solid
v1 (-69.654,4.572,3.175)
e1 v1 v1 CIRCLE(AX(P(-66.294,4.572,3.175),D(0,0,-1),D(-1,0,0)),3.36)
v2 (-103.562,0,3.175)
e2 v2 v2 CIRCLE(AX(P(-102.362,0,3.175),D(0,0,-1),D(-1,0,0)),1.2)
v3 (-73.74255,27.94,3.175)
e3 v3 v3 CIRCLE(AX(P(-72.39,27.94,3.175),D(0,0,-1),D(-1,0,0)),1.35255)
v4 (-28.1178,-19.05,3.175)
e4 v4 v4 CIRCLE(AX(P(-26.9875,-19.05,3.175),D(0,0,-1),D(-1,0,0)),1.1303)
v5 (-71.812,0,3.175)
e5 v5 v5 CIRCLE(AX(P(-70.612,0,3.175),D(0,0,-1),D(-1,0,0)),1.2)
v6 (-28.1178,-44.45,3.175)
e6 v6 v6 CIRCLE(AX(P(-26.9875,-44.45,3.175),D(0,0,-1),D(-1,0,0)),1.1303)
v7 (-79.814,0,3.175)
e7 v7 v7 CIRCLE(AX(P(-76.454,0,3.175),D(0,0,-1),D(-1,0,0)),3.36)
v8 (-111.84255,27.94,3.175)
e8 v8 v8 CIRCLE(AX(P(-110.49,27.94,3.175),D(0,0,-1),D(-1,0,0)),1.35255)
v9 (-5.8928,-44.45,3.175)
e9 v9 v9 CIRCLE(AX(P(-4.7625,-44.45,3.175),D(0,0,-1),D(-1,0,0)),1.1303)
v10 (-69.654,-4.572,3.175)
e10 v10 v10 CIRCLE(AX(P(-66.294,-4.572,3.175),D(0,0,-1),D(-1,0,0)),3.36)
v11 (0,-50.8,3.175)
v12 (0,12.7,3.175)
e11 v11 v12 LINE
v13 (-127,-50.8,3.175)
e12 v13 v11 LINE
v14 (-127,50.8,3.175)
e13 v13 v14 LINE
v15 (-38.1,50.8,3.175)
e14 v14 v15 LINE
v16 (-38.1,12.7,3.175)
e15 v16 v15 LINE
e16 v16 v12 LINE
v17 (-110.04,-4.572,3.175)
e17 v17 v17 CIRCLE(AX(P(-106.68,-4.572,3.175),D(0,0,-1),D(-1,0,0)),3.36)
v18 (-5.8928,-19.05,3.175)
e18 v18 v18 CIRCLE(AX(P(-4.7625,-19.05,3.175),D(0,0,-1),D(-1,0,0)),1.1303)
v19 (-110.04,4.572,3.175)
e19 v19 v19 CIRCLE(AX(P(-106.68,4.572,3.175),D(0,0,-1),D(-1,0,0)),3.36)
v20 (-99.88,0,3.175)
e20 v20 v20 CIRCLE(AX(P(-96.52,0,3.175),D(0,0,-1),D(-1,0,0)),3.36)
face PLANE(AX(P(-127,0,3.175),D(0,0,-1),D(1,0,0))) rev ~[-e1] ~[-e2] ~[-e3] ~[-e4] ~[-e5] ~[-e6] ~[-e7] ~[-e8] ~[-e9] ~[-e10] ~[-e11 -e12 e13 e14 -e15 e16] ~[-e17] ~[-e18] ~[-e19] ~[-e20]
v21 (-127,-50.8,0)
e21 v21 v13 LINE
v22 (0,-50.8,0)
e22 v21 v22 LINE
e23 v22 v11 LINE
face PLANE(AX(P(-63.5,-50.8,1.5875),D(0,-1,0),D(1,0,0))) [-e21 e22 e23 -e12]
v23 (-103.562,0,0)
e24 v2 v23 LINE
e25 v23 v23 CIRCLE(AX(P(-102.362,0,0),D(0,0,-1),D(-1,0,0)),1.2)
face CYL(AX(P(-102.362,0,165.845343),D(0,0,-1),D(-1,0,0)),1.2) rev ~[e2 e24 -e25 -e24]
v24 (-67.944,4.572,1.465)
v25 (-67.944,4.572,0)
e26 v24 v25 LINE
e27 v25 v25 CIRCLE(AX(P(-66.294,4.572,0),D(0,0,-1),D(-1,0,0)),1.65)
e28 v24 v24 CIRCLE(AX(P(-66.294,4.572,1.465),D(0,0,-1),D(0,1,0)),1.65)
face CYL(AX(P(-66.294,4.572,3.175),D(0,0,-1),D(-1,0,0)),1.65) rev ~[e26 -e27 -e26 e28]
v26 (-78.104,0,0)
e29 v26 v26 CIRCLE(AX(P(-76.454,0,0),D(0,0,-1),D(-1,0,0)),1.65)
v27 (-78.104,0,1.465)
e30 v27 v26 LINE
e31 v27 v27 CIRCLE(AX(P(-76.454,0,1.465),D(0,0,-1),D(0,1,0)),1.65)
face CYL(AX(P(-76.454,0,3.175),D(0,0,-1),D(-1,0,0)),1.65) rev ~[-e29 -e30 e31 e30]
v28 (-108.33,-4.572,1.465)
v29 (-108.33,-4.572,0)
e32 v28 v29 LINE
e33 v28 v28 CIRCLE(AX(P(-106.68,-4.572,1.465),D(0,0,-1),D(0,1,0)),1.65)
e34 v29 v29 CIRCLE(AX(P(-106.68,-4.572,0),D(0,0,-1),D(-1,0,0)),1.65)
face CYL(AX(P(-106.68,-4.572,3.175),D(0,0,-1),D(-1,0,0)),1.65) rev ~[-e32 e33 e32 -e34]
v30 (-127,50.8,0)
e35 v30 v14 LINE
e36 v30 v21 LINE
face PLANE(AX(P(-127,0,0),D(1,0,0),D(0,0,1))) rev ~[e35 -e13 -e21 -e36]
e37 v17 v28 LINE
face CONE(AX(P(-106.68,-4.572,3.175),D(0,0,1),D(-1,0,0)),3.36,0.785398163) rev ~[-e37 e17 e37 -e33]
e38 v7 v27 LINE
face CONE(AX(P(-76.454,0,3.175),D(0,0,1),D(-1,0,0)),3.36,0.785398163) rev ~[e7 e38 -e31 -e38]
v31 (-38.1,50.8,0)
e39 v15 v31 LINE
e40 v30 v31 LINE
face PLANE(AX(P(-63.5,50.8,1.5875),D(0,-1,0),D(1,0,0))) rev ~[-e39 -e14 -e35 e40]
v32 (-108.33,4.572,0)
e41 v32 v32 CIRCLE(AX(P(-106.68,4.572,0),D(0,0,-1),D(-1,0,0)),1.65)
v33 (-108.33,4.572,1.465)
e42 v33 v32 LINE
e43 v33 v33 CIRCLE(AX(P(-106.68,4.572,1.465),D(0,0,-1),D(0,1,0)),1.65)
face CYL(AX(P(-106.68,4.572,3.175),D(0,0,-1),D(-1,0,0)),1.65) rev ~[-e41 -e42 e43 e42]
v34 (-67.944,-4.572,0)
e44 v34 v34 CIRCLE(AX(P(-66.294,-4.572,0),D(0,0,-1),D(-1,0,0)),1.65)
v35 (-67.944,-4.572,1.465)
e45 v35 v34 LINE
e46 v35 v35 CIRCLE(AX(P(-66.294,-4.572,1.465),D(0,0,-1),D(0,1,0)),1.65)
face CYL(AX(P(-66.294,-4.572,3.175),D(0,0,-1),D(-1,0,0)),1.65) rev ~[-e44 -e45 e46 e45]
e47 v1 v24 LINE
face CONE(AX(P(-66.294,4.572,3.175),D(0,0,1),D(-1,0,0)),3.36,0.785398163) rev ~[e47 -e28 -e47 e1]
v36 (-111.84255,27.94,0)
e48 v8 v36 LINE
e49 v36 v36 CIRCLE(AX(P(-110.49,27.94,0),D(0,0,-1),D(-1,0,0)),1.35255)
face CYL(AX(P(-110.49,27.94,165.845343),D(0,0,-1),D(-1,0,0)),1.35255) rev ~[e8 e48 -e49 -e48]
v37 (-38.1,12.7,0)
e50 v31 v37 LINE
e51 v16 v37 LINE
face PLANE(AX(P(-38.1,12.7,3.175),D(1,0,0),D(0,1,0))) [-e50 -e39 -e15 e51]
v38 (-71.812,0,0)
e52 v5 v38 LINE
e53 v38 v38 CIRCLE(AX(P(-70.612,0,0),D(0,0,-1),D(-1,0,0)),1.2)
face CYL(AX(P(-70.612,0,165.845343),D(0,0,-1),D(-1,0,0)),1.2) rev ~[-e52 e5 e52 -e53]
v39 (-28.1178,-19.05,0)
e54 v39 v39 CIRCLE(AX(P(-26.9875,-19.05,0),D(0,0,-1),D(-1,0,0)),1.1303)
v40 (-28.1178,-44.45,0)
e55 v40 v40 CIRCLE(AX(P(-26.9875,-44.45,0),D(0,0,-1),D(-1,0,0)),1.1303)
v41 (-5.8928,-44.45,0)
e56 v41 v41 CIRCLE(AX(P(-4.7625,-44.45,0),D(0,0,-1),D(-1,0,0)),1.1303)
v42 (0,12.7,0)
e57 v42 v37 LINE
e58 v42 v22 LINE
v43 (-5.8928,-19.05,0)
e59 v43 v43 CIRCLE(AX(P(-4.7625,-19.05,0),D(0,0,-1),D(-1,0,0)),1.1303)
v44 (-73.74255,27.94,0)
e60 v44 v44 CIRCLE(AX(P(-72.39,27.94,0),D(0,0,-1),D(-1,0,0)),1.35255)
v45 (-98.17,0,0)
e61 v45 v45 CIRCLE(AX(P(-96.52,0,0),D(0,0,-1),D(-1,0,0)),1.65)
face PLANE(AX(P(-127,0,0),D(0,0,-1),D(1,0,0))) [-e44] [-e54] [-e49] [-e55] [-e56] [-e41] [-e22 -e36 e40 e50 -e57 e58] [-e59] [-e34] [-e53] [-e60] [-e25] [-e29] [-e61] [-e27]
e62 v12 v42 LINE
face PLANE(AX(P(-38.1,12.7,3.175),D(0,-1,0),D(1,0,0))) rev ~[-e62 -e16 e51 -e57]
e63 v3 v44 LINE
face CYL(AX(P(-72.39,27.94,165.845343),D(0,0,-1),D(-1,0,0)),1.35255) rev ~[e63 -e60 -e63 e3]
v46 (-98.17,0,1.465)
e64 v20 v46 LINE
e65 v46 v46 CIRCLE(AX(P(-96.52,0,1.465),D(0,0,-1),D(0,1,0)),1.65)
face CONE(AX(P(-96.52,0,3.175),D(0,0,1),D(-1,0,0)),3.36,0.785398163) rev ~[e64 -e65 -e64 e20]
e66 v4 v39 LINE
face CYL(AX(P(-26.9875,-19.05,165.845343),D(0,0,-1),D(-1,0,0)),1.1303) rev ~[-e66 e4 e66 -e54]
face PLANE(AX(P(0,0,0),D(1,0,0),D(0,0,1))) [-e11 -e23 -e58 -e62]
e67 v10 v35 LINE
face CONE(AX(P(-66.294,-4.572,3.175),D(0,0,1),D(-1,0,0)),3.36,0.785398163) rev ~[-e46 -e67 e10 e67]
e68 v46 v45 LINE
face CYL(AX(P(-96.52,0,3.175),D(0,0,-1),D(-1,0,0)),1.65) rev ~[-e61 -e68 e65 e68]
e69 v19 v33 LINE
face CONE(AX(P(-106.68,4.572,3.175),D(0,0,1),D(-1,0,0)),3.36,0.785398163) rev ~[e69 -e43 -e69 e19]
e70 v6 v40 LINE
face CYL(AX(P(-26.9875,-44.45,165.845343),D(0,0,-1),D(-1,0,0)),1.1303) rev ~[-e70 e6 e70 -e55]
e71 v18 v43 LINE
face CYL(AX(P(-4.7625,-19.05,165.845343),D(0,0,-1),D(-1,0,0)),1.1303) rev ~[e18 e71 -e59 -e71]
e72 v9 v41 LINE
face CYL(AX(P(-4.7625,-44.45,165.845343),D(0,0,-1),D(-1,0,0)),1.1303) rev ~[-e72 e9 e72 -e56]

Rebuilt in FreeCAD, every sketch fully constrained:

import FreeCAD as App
import Part
import Sketcher
from FreeCAD import Vector
Q = App.Units.Quantity

doc = App.newDocument("Part")
body = doc.addObject("PartDesign::Body", "Body")

# Sketch on XZ plane
sketch1 = body.newObject("Sketcher::SketchObject", "Sketch")
sketch1.AttachmentSupport = (doc.getObject("XZ_Plane"), [""])
sketch1.MapMode = "FlatFace"
sketch1.addGeometry(Part.LineSegment(Vector(-127, 3.175, 0), Vector(-127, 0, 0)), False)
sketch1.addGeometry(Part.LineSegment(Vector(-127, 0, 0), Vector(0, 0, 0)), False)
sketch1.addGeometry(Part.LineSegment(Vector(0, 0, 0), Vector(0, 3.175, 0)), False)
sketch1.addGeometry(Part.LineSegment(Vector(0, 3.175, 0), Vector(-127, 3.175, 0)), False)
sketch1.addConstraint(Sketcher.Constraint("Coincident", 0, 2, 1, 1))
sketch1.addConstraint(Sketcher.Constraint("Coincident", 1, 2, 2, 1))
sketch1.addConstraint(Sketcher.Constraint("Coincident", 2, 2, 3, 1))
sketch1.addConstraint(Sketcher.Constraint("Coincident", 3, 2, 0, 1))
sketch1.addConstraint(Sketcher.Constraint("Vertical", 0))
sketch1.addConstraint(Sketcher.Constraint("Horizontal", 1))
sketch1.addConstraint(Sketcher.Constraint("Vertical", 2))
sketch1.addConstraint(Sketcher.Constraint("Horizontal", 3))
sketch1.addConstraint(Sketcher.Constraint("Coincident", 1, 2, -1, 1))
sketch1.addConstraint(Sketcher.Constraint("DistanceX", 1, 1, 1, 2, Q("5 in")))
sketch1.addConstraint(Sketcher.Constraint("DistanceY", 0, 2, 0, 1, Q("0.125 in")))
pad1 = body.newObject("PartDesign::Pad", "Pad")
pad1.Profile = sketch1
pad1.Length = Q("4 in")
pad1.Midplane = True

# Sketch on XY plane
sketch2 = body.newObject("Sketcher::SketchObject", "Sketch001")
sketch2.AttachmentSupport = (doc.getObject("XY_Plane"), [""])
sketch2.MapMode = "FlatFace"
sketch2.AttachmentOffset = App.Placement(Vector(0, 0, 0.125 * 25.4), App.Rotation())
sketch2.addGeometry(Part.Circle(Vector(-66.294, 4.572, 0), Vector(0, 0, 1), 1.65), False)
sketch2.addGeometry(Part.Circle(Vector(-66.294, -4.572, 0), Vector(0, 0, 1), 1.65), False)
sketch2.addGeometry(Part.Circle(Vector(-76.454, 0, 0), Vector(0, 0, 1), 1.65), False)
sketch2.addGeometry(Part.Circle(Vector(-96.52, 0, 0), Vector(0, 0, 1), 1.65), False)
sketch2.addGeometry(Part.Circle(Vector(-106.68, 4.572, 0), Vector(0, 0, 1), 1.65), False)
sketch2.addGeometry(Part.Circle(Vector(-106.68, -4.572, 0), Vector(0, 0, 1), 1.65), False)
sketch2.addConstraint(Sketcher.Constraint("Equal", 0, 1))
sketch2.addConstraint(Sketcher.Constraint("Equal", 1, 2))
sketch2.addConstraint(Sketcher.Constraint("Equal", 2, 3))
sketch2.addConstraint(Sketcher.Constraint("Equal", 3, 4))
sketch2.addConstraint(Sketcher.Constraint("Equal", 4, 5))
sketch2.addConstraint(Sketcher.Constraint("Symmetric", 0, 3, 1, 3, -1))
sketch2.addConstraint(Sketcher.Constraint("Symmetric", 4, 3, 5, 3, -1))
sketch2.addConstraint(Sketcher.Constraint("PointOnObject", 2, 3, -1))
sketch2.addConstraint(Sketcher.Constraint("PointOnObject", 3, 3, -1))
sketch2.addConstraint(Sketcher.Constraint("Horizontal", 0, 3, 4, 3))
sketch2.addConstraint(Sketcher.Constraint("DistanceX", 3, 3, -1, 1, Q("3.8 in")))
sketch2.addConstraint(Sketcher.Constraint("DistanceX", 4, 3, -1, 1, Q("4.2 in")))
sketch2.addConstraint(Sketcher.Constraint("DistanceX", 2, 3, 0, 3, Q("0.4 in")))
sketch2.addConstraint(Sketcher.Constraint("Diameter", 0, Q("3.3 mm")))
sketch2.addConstraint(Sketcher.Constraint("DistanceX", 0, 3, -1, 1, Q("2.61 in")))
sketch2.addConstraint(Sketcher.Constraint("DistanceY", -1, 1, 0, 3, Q("0.18 in")))
doc.recompute()
hole = body.newObject("PartDesign::Hole", "Hole")
hole.Profile = sketch2
hole.ThreadType = "None"
hole.Diameter = 3.3
hole.DepthType = "ThroughAll"
hole.HoleCutType = "Countersink"
hole.HoleCutDiameter = 6.72
hole.HoleCutCountersinkAngle = 90

# Sketch on XY plane
sketch3 = body.newObject("Sketcher::SketchObject", "Sketch002")
sketch3.AttachmentSupport = (doc.getObject("XY_Plane"), [""])
sketch3.MapMode = "FlatFace"
sketch3.AttachmentOffset = App.Placement(Vector(0, 0, 0.125 * 25.4), App.Rotation())
sketch3.addGeometry(Part.Circle(Vector(-102.362, 0, 0), Vector(0, 0, 1), 1.2), False)
sketch3.addGeometry(Part.Circle(Vector(-70.612, 0, 0), Vector(0, 0, 1), 1.2), False)
sketch3.addConstraint(Sketcher.Constraint("Equal", 0, 1))
sketch3.addConstraint(Sketcher.Constraint("PointOnObject", 0, 3, -1))
sketch3.addConstraint(Sketcher.Constraint("PointOnObject", 1, 3, -1))
sketch3.addConstraint(Sketcher.Constraint("Diameter", 0, Q("2.4 mm")))
sketch3.addConstraint(Sketcher.Constraint("DistanceX", 0, 3, -1, 1, Q("4.03 in")))
sketch3.addConstraint(Sketcher.Constraint("DistanceX", 1, 3, -1, 1, Q("2.78 in")))
doc.recompute()
hole2 = body.newObject("PartDesign::Hole", "Hole001")
hole2.Profile = sketch3
hole2.ThreadType = "None"
hole2.Diameter = 2.4
hole2.DepthType = "ThroughAll"

# Sketch on XY plane
sketch4 = body.newObject("Sketcher::SketchObject", "Sketch003")
sketch4.AttachmentSupport = (doc.getObject("XY_Plane"), [""])
sketch4.MapMode = "FlatFace"
sketch4.AttachmentOffset = App.Placement(Vector(0, 0, 0.125 * 25.4), App.Rotation())
sketch4.addGeometry(Part.LineSegment(Vector(-38.1, 50.8, 0), Vector(-38.1, 12.7, 0)), False)
sketch4.addGeometry(Part.LineSegment(Vector(-38.1, 12.7, 0), Vector(0, 12.7, 0)), False)
sketch4.addGeometry(Part.LineSegment(Vector(0, 12.7, 0), Vector(0, 50.8, 0)), False)
sketch4.addGeometry(Part.LineSegment(Vector(0, 50.8, 0), Vector(-38.1, 50.8, 0)), False)
sketch4.addConstraint(Sketcher.Constraint("Coincident", 0, 2, 1, 1))
sketch4.addConstraint(Sketcher.Constraint("Coincident", 1, 2, 2, 1))
sketch4.addConstraint(Sketcher.Constraint("Coincident", 2, 2, 3, 1))
sketch4.addConstraint(Sketcher.Constraint("Coincident", 3, 2, 0, 1))
sketch4.addConstraint(Sketcher.Constraint("Vertical", 0))
sketch4.addConstraint(Sketcher.Constraint("Horizontal", 1))
sketch4.addConstraint(Sketcher.Constraint("Vertical", 2))
sketch4.addConstraint(Sketcher.Constraint("Horizontal", 3))
sketch4.addConstraint(Sketcher.Constraint("PointOnObject", 1, 2, -2))
sketch4.addConstraint(Sketcher.Constraint("Equal", 3, 0))
sketch4.addConstraint(Sketcher.Constraint("DistanceX", 1, 1, 1, 2, Q("1.5 in")))
sketch4.addConstraint(Sketcher.Constraint("DistanceY", -1, 1, 2, 2, Q("2 in")))
pocket1 = body.newObject("PartDesign::Pocket", "Pocket")
pocket1.Profile = sketch4
pocket1.Type = "ThroughAll"

# Sketch on XY plane
sketch5 = body.newObject("Sketcher::SketchObject", "Sketch004")
sketch5.AttachmentSupport = (doc.getObject("XY_Plane"), [""])
sketch5.MapMode = "FlatFace"
sketch5.AttachmentOffset = App.Placement(Vector(0, 0, 0.125 * 25.4), App.Rotation())
sketch5.addGeometry(Part.Circle(Vector(-26.9875, -44.45, 0), Vector(0, 0, 1), 1.1303), False)
sketch5.addGeometry(Part.Circle(Vector(-26.9875, -19.05, 0), Vector(0, 0, 1), 1.1303), False)
sketch5.addGeometry(Part.Circle(Vector(-4.7625, -19.05, 0), Vector(0, 0, 1), 1.1303), False)
sketch5.addGeometry(Part.Circle(Vector(-4.7625, -44.45, 0), Vector(0, 0, 1), 1.1303), False)
sketch5.addConstraint(Sketcher.Constraint("Equal", 0, 1))
sketch5.addConstraint(Sketcher.Constraint("Equal", 1, 2))
sketch5.addConstraint(Sketcher.Constraint("Equal", 2, 3))
sketch5.addConstraint(Sketcher.Constraint("Horizontal", 1, 3, 2, 3))
sketch5.addConstraint(Sketcher.Constraint("Horizontal", 0, 3, 3, 3))
sketch5.addConstraint(Sketcher.Constraint("Vertical", 0, 3, 1, 3))
sketch5.addConstraint(Sketcher.Constraint("Vertical", 2, 3, 3, 3))
sketch5.addConstraint(Sketcher.Constraint("Diameter", 0, Q("0.089 in")))
sketch5.addConstraint(Sketcher.Constraint("DistanceY", 0, 3, 1, 3, Q("1 in")))
sketch5.addConstraint(Sketcher.Constraint("DistanceY", 0, 3, -1, 1, Q("1.75 in")))
sketch5.addConstraint(Sketcher.Constraint("DistanceX", 0, 3, -1, 1, Q("1.0625 in")))
sketch5.addConstraint(Sketcher.Constraint("DistanceX", 2, 3, -1, 1, Q("0.1875 in")))
doc.recompute()
hole3 = body.newObject("PartDesign::Hole", "Hole002")
hole3.Profile = sketch5
hole3.ThreadType = "None"
hole3.Diameter = Q("0.089 in")
hole3.DepthType = "ThroughAll"

# Sketch on XY plane
sketch6 = body.newObject("Sketcher::SketchObject", "Sketch005")
sketch6.AttachmentSupport = (doc.getObject("XY_Plane"), [""])
sketch6.MapMode = "FlatFace"
sketch6.AttachmentOffset = App.Placement(Vector(0, 0, 0.125 * 25.4), App.Rotation())
sketch6.addGeometry(Part.Circle(Vector(-110.49, 27.94, 0), Vector(0, 0, 1), 1.35255), False)
sketch6.addGeometry(Part.Circle(Vector(-72.39, 27.94, 0), Vector(0, 0, 1), 1.35255), False)
sketch6.addConstraint(Sketcher.Constraint("Equal", 0, 1))
sketch6.addConstraint(Sketcher.Constraint("Horizontal", 0, 3, 1, 3))
sketch6.addConstraint(Sketcher.Constraint("Diameter", 0, Q("0.1065 in")))
sketch6.addConstraint(Sketcher.Constraint("DistanceY", -1, 1, 0, 3, Q("1.1 in")))
sketch6.addConstraint(Sketcher.Constraint("DistanceX", 0, 3, 1, 3, Q("1.5 in")))
sketch6.addConstraint(Sketcher.Constraint("DistanceX", 0, 3, -1, 1, Q("4.35 in")))
doc.recompute()
hole4 = body.newObject("PartDesign::Hole", "Hole003")
hole4.Profile = sketch6
hole4.ThreadType = "None"
hole4.Diameter = Q("0.1065 in")
hole4.DepthType = "ThroughAll"

doc.recompute()
